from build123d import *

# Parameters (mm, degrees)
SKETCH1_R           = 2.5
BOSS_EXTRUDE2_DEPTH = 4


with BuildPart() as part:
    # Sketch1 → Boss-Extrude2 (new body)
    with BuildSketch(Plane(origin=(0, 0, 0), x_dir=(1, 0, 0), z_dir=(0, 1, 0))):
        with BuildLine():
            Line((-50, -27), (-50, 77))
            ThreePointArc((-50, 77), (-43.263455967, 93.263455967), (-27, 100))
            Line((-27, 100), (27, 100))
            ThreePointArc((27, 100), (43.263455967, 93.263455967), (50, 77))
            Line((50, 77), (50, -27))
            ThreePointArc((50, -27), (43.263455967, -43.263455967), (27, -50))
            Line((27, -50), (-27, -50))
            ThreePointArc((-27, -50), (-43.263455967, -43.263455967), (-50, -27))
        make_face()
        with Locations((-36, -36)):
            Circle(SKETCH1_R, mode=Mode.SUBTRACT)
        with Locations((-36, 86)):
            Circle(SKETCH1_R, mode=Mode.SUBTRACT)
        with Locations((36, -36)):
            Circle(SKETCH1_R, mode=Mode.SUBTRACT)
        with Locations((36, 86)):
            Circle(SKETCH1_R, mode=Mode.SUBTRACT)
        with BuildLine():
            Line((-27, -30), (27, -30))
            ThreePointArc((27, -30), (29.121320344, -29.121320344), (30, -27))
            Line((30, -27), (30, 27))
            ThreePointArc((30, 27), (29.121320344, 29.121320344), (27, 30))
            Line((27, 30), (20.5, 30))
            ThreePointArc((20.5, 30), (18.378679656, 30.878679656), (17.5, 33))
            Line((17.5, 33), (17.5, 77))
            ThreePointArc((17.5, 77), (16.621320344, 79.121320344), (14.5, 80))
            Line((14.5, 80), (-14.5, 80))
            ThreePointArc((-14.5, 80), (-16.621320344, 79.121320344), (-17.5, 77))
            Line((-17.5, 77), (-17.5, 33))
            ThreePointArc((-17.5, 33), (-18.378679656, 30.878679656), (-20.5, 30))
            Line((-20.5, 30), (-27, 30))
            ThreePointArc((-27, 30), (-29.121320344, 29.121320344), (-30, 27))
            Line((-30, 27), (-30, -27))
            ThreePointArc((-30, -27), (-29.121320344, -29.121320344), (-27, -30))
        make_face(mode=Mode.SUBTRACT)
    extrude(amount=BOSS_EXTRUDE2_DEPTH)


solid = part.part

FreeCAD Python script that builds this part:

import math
import FreeCAD as App
import Part
import Sketcher
from FreeCAD import Vector
Q = App.Units.Quantity

doc = App.newDocument("Part")
body = doc.addObject("PartDesign::Body", "Body")

# Sketch on XZ plane
sketch1 = body.newObject("Sketcher::SketchObject", "Sketch")
sketch1.AttachmentSupport = (doc.getObject("XZ_Plane"), [""])
sketch1.MapMode = "FlatFace"
sketch1.addGeometry(Part.LineSegment(Vector(-50, -77, 0), Vector(-50, 27, 0)), False)
sketch1.addGeometry(Part.ArcOfCircle(Part.Circle(Vector(-27, 27, 0), Vector(0, 0, 1), 23), math.radians(90), math.radians(180)), False)
sketch1.addGeometry(Part.LineSegment(Vector(-27, 50, 0), Vector(27, 50, 0)), False)
sketch1.addGeometry(Part.ArcOfCircle(Part.Circle(Vector(27, 27, 0), Vector(0, 0, 1), 23), math.radians(0), math.radians(90)), False)
sketch1.addGeometry(Part.LineSegment(Vector(50, 27, 0), Vector(50, -77, 0)), False)
sketch1.addGeometry(Part.ArcOfCircle(Part.Circle(Vector(27, -77, 0), Vector(0, 0, 1), 23), math.radians(-90), math.radians(0)), False)
sketch1.addGeometry(Part.LineSegment(Vector(27, -100, 0), Vector(-27, -100, 0)), False)
sketch1.addGeometry(Part.ArcOfCircle(Part.Circle(Vector(-27, -77, 0), Vector(0, 0, 1), 23), math.radians(-180), math.radians(-90)), False)
sketch1.addGeometry(Part.Circle(Vector(36, 36, 0), Vector(0, 0, 1), 2.5), False)
sketch1.addGeometry(Part.Circle(Vector(-36, 36, 0), Vector(0, 0, 1), 2.5), False)
sketch1.addGeometry(Part.Circle(Vector(36, -86, 0), Vector(0, 0, 1), 2.5), False)
sketch1.addGeometry(Part.ArcOfCircle(Part.Circle(Vector(-27, 27, 0), Vector(0, 0, 1), 3), math.radians(90), math.radians(180)), False)
sketch1.addGeometry(Part.LineSegment(Vector(-30, 27, 0), Vector(-30, -27, 0)), False)
sketch1.addGeometry(Part.ArcOfCircle(Part.Circle(Vector(-27, -27, 0), Vector(0, 0, 1), 3), math.radians(180), math.radians(270)), False)
sketch1.addGeometry(Part.LineSegment(Vector(-27, -30, 0), Vector(-20.5, -30, 0)), False)
sketch1.addGeometry(Part.ArcOfCircle(Part.Circle(Vector(-20.5, -33, 0), Vector(0, 0, 1), 3), math.radians(0), math.radians(90)), False)
sketch1.addGeometry(Part.LineSegment(Vector(-17.5, -33, 0), Vector(-17.5, -77, 0)), False)
sketch1.addGeometry(Part.ArcOfCircle(Part.Circle(Vector(-14.5, -77, 0), Vector(0, 0, 1), 3), math.radians(180), math.radians(270)), False)
sketch1.addGeometry(Part.LineSegment(Vector(-14.5, -80, 0), Vector(14.5, -80, 0)), False)
sketch1.addGeometry(Part.ArcOfCircle(Part.Circle(Vector(14.5, -77, 0), Vector(0, 0, 1), 3), math.radians(-90), math.radians(0)), False)
sketch1.addGeometry(Part.LineSegment(Vector(17.5, -77, 0), Vector(17.5, -33, 0)), False)
sketch1.addGeometry(Part.ArcOfCircle(Part.Circle(Vector(20.5, -33, 0), Vector(0, 0, 1), 3), math.radians(90), math.radians(180)), False)
sketch1.addGeometry(Part.LineSegment(Vector(20.5, -30, 0), Vector(27, -30, 0)), False)
sketch1.addGeometry(Part.ArcOfCircle(Part.Circle(Vector(27, -27, 0), Vector(0, 0, 1), 3), math.radians(-90), math.radians(0)), False)
sketch1.addGeometry(Part.LineSegment(Vector(30, -27, 0), Vector(30, 27, 0)), False)
sketch1.addGeometry(Part.ArcOfCircle(Part.Circle(Vector(27, 27, 0), Vector(0, 0, 1), 3), math.radians(0), math.radians(90)), False)
sketch1.addGeometry(Part.LineSegment(Vector(27, 30, 0), Vector(-27, 30, 0)), False)
sketch1.addGeometry(Part.Circle(Vector(-36, -86, 0), Vector(0, 0, 1), 2.5), False)
sketch1.addConstraint(Sketcher.Constraint("Tangent", 0, 2, 1, 2))
sketch1.addConstraint(Sketcher.Constraint("Tangent", 1, 1, 2, 1))
sketch1.addConstraint(Sketcher.Constraint("Tangent", 2, 2, 3, 2))
sketch1.addConstraint(Sketcher.Constraint("Tangent", 3, 1, 4, 1))
sketch1.addConstraint(Sketcher.Constraint("Tangent", 4, 2, 5, 2))
sketch1.addConstraint(Sketcher.Constraint("Tangent", 5, 1, 6, 1))
sketch1.addConstraint(Sketcher.Constraint("Tangent", 6, 2, 7, 2))
sketch1.addConstraint(Sketcher.Constraint("Tangent", 7, 1, 0, 1))
sketch1.addConstraint(Sketcher.Constraint("Tangent", 11, 2, 12, 1))
sketch1.addConstraint(Sketcher.Constraint("Tangent", 12, 2, 13, 1))
sketch1.addConstraint(Sketcher.Constraint("Tangent", 13, 2, 14, 1))
sketch1.addConstraint(Sketcher.Constraint("Tangent", 14, 2, 15, 2))
sketch1.addConstraint(Sketcher.Constraint("Tangent", 15, 1, 16, 1))
sketch1.addConstraint(Sketcher.Constraint("Tangent", 16, 2, 17, 1))
sketch1.addConstraint(Sketcher.Constraint("Tangent", 17, 2, 18, 1))
sketch1.addConstraint(Sketcher.Constraint("Tangent", 18, 2, 19, 1))
sketch1.addConstraint(Sketcher.Constraint("Tangent", 19, 2, 20, 1))
sketch1.addConstraint(Sketcher.Constraint("Tangent", 20, 2, 21, 2))
sketch1.addConstraint(Sketcher.Constraint("Tangent", 21, 1, 22, 1))
sketch1.addConstraint(Sketcher.Constraint("Tangent", 22, 2, 23, 1))
sketch1.addConstraint(Sketcher.Constraint("Tangent", 23, 2, 24, 1))
sketch1.addConstraint(Sketcher.Constraint("Tangent", 24, 2, 25, 1))
sketch1.addConstraint(Sketcher.Constraint("Tangent", 25, 2, 26, 1))
sketch1.addConstraint(Sketcher.Constraint("Tangent", 26, 2, 11, 1))
sketch1.addConstraint(Sketcher.Constraint("Vertical", 0))
sketch1.addConstraint(Sketcher.Constraint("Horizontal", 2))
sketch1.addConstraint(Sketcher.Constraint("Vertical", 4))
sketch1.addConstraint(Sketcher.Constraint("Horizontal", 6))
sketch1.addConstraint(Sketcher.Constraint("Vertical", 12))
sketch1.addConstraint(Sketcher.Constraint("Horizontal", 14))
sketch1.addConstraint(Sketcher.Constraint("Vertical", 16))
sketch1.addConstraint(Sketcher.Constraint("Horizontal", 18))
sketch1.addConstraint(Sketcher.Constraint("Vertical", 20))
sketch1.addConstraint(Sketcher.Constraint("Horizontal", 22))
sketch1.addConstraint(Sketcher.Constraint("Vertical", 24))
sketch1.addConstraint(Sketcher.Constraint("Horizontal", 26))
sketch1.addConstraint(Sketcher.Constraint("Coincident", 11, 3, 1, 3))
sketch1.addConstraint(Sketcher.Constraint("Coincident", 25, 3, 3, 3))
sketch1.addConstraint(Sketcher.Constraint("Equal", 1, 3))
sketch1.addConstraint(Sketcher.Constraint("Equal", 3, 5))
sketch1.addConstraint(Sketcher.Constraint("Equal", 5, 7))
sketch1.addConstraint(Sketcher.Constraint("Equal", 8, 9))
sketch1.addConstraint(Sketcher.Constraint("Equal", 9, 10))
sketch1.addConstraint(Sketcher.Constraint("Equal", 11, 13))
sketch1.addConstraint(Sketcher.Constraint("Equal", 13, 15))
sketch1.addConstraint(Sketcher.Constraint("Equal", 15, 17))
sketch1.addConstraint(Sketcher.Constraint("Equal", 17, 19))
sketch1.addConstraint(Sketcher.Constraint("Equal", 19, 21))
sketch1.addConstraint(Sketcher.Constraint("Equal", 21, 23))
sketch1.addConstraint(Sketcher.Constraint("Equal", 10, 27))
sketch1.addConstraint(Sketcher.Constraint("Symmetric", 3, 3, 13, 3, -1, 1))
sketch1.addConstraint(Sketcher.Constraint("Symmetric", 8, 3, 9, 3, -2))
sketch1.addConstraint(Sketcher.Constraint("Symmetric", 15, 3, 21, 3, -2))
sketch1.addConstraint(Sketcher.Constraint("Symmetric", 10, 3, 27, 3, -2))
sketch1.addConstraint(Sketcher.Constraint("Horizontal", 7, 3, 17, 3))
sketch1.addConstraint(Sketcher.Constraint("Vertical", 8, 3, 10, 3))
sketch1.addConstraint(Sketcher.Constraint("Equal", 26, 12))
sketch1.addConstraint(Sketcher.Constraint("Diameter", 8, Q("5 mm")))
sketch1.addConstraint(Sketcher.Constraint("Radius", 1, Q("23 mm")))
sketch1.addConstraint(Sketcher.Constraint("Radius", 11, Q("3 mm")))
sketch1.addConstraint(Sketcher.Constraint("DistanceX", 2, 1, 2, 2, Q("54 mm")))
sketch1.addConstraint(Sketcher.Constraint("DistanceX", 18, 1, 18, 2, Q("29 mm")))
sketch1.addConstraint(Sketcher.Constraint("DistanceY", 0, 1, 0, 2, Q("104 mm")))
sketch1.addConstraint(Sketcher.Constraint("DistanceX", -1, 1, 8, 3, Q("36 mm")))
sketch1.addConstraint(Sketcher.Constraint("DistanceY", -1, 1, 8, 3, Q("36 mm")))
sketch1.addConstraint(Sketcher.Constraint("DistanceY", 10, 3, -1, 1, Q("86 mm")))
pad1 = body.newObject("PartDesign::Pad", "Pad")
pad1.Profile = sketch1
pad1.Length = 4
pad1.Reversed = True

doc.recompute()
